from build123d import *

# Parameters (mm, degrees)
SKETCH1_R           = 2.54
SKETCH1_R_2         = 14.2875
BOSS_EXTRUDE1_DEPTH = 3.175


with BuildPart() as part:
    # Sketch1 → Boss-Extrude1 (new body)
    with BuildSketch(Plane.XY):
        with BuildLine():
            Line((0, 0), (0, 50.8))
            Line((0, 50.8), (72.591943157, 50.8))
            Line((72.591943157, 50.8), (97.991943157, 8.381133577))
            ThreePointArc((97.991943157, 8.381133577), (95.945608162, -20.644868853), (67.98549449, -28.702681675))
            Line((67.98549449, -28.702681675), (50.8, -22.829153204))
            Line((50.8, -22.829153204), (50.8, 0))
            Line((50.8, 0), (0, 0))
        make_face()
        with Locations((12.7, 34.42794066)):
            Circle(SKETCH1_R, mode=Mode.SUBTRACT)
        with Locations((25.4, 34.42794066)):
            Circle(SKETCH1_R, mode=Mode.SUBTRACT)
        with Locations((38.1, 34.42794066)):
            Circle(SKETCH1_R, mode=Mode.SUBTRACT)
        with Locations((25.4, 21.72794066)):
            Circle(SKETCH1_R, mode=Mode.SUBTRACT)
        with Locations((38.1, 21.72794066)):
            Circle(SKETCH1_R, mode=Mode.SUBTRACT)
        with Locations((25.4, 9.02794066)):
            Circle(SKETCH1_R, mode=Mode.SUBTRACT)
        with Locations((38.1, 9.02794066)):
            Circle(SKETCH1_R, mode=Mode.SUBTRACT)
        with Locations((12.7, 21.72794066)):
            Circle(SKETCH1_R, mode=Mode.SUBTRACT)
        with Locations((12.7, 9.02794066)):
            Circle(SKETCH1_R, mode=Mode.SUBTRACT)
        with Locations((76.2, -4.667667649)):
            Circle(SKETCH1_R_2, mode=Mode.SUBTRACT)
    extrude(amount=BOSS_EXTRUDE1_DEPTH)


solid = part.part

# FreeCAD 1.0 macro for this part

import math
import FreeCAD as App
import Part
import Sketcher
from FreeCAD import Vector
Q = App.Units.Quantity

doc = App.newDocument("Part")
body = doc.addObject("PartDesign::Body", "Body")

sketch1 = body.newObject("Sketcher::SketchObject", "Sketch")
sketch1.AttachmentSupport = (doc.getObject("XY_Plane"), [""])
sketch1.MapMode = "FlatFace"
sketch1.addGeometry([
    Part.LineSegment(Vector(0, 50.8, 0), Vector(0, 0, 0)),
    Part.LineSegment(Vector(0, 0, 0), Vector(50.8, 0, 0)),
    Part.LineSegment(Vector(50.8, 0, 0), Vector(50.8, -22.8, 0)),
    Part.LineSegment(Vector(50.8, -22.8, 0), Vector(68, -28.7, 0)),
    Part.ArcOfCircle(Part.Circle(Vector(76.2, -4.7, 0), Vector(0, 0, 1), 25.4), math.radians(-109), math.radians(31)),
    Part.LineSegment(Vector(98, 8.4, 0), Vector(72.6, 50.8, 0)),
    Part.LineSegment(Vector(72.6, 50.8, 0), Vector(0, 50.8, 0)),
    Part.Circle(Vector(76.2, -4.7, 0), Vector(0, 0, 1), 14.3),
    Part.Circle(Vector(38.1, 9, 0), Vector(0, 0, 1), 2.5),
    Part.Circle(Vector(38.1, 21.7, 0), Vector(0, 0, 1), 2.5),
    Part.Circle(Vector(25.4, 9, 0), Vector(0, 0, 1), 2.5),
    Part.Circle(Vector(12.7, 9, 0), Vector(0, 0, 1), 2.5),
    Part.Circle(Vector(25.4, 21.7, 0), Vector(0, 0, 1), 2.5),
    Part.Circle(Vector(12.7, 21.7, 0), Vector(0, 0, 1), 2.5),
    Part.Circle(Vector(38.1, 34.4, 0), Vector(0, 0, 1), 2.5),
    Part.Circle(Vector(25.4, 34.4, 0), Vector(0, 0, 1), 2.5),
    Part.Circle(Vector(12.7, 34.4, 0), Vector(0, 0, 1), 2.5),
], False)
sketch1.addConstraint([
    Sketcher.Constraint("Coincident", 0, 2, 1, 1),
    Sketcher.Constraint("Coincident", 1, 2, 2, 1),
    Sketcher.Constraint("Coincident", 2, 2, 3, 1),
    Sketcher.Constraint("Tangent", 3, 2, 4, 1),
    Sketcher.Constraint("Tangent", 4, 2, 5, 1),
    Sketcher.Constraint("Coincident", 5, 2, 6, 1),
    Sketcher.Constraint("Coincident", 6, 2, 0, 1),
    Sketcher.Constraint("Vertical", 0),
    Sketcher.Constraint("Horizontal", 1),
    Sketcher.Constraint("Vertical", 2),
    Sketcher.Constraint("Horizontal", 6),
    Sketcher.Constraint("Coincident", 0, 2, -1, 1),
    Sketcher.Constraint("Coincident", 7, 3, 4, 3),
    Sketcher.Constraint("Equal", 8, 9),
    Sketcher.Constraint("Equal", 9, 10),
    Sketcher.Constraint("Equal", 10, 11),
    Sketcher.Constraint("Equal", 11, 12),
    Sketcher.Constraint("Equal", 12, 13),
    Sketcher.Constraint("Equal", 13, 14),
    Sketcher.Constraint("Equal", 14, 15),
    Sketcher.Constraint("Equal", 15, 16),
    Sketcher.Constraint("Horizontal", 8, 3, 10, 3),
    Sketcher.Constraint("Horizontal", 10, 3, 11, 3),
    Sketcher.Constraint("Horizontal", 9, 3, 12, 3),
    Sketcher.Constraint("Horizontal", 12, 3, 13, 3),
    Sketcher.Constraint("Horizontal", 14, 3, 15, 3),
    Sketcher.Constraint("Horizontal", 15, 3, 16, 3),
    Sketcher.Constraint("Vertical", 8, 3, 9, 3),
    Sketcher.Constraint("Vertical", 10, 3, 12, 3),
    Sketcher.Constraint("Vertical", 11, 3, 13, 3),
    Sketcher.Constraint("Vertical", 9, 3, 14, 3),
    Sketcher.Constraint("Vertical", 12, 3, 15, 3),
    Sketcher.Constraint("Vertical", 13, 3, 16, 3),
    Sketcher.Constraint("Equal", 1, 0),
    Sketcher.Constraint("Radius", 4, Q("1 in")),
    Sketcher.Constraint("Diameter", 8, Q("0.2 in")),
    Sketcher.Constraint("DistanceX", 1, 1, 1, 2, Q("2 in")),
    Sketcher.Constraint("Diameter", 7, Q("1.125 in")),
    Sketcher.Constraint("DistanceX", -1, 1, 4, 3, Q("3 in")),
    Sketcher.Constraint("DistanceX", -1, 1, 10, 3, Q("1 in")),
    Sketcher.Constraint("DistanceX", 11, 3, 8, 3, Q("1 in")),
    Sketcher.Constraint("DistanceY", 8, 3, 14, 3, Q("1 in")),
    Sketcher.Constraint("DistanceX", 5, 2, 4, 2, Q("1 in")),
    Sketcher.Constraint("DistanceX", -1, 1, 8, 3, Q("1.5 in")),
    Sketcher.Constraint("DistanceY", 8, 3, 9, 3, Q("0.5 in")),
    Sketcher.Constraint("DistanceY", 4, 3, 4, 2, Q("13.048801 mm")),
    Sketcher.Constraint("DistanceY", 2, 2, 2, 1, Q("22.829153 mm")),
    Sketcher.Constraint("DistanceY", -1, 1, 8, 3, Q("9.027941 mm")),
])
pad1 = body.newObject("PartDesign::Pad", "Pad")
pad1.Profile = sketch1
pad1.Length = Q("0.125 in")

doc.recompute()
